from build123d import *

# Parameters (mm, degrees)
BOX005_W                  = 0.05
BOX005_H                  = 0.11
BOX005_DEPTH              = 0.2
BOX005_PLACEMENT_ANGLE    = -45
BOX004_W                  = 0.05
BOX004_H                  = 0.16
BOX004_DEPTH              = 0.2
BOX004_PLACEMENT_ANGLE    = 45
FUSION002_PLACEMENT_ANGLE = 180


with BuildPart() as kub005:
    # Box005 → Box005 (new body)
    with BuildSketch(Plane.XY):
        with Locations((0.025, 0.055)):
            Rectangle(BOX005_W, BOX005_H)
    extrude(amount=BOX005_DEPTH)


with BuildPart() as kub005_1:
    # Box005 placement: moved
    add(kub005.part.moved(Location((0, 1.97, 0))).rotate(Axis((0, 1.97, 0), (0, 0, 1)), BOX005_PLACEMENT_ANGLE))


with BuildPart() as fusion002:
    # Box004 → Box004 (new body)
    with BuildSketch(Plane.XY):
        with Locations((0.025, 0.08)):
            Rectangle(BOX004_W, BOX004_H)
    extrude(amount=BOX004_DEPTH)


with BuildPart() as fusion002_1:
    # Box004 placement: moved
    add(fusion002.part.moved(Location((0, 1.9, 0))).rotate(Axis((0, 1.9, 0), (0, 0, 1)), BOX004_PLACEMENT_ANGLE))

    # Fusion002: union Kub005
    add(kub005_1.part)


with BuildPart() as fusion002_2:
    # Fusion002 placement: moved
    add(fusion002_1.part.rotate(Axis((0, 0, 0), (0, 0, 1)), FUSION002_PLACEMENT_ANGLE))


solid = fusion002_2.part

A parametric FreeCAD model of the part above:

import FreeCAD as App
import Part
import Sketcher
from FreeCAD import Vector

doc = App.newDocument("Part")
body = doc.addObject("PartDesign::Body", "Body")

# Sketch on XY plane
sketch1 = body.newObject("Sketcher::SketchObject", "Sketch")
sketch1.AttachmentSupport = (doc.getObject("XY_Plane"), [""])
sketch1.MapMode = "FlatFace"
sketch1.addGeometry([
    Part.LineSegment(Vector(0, 0.11, 0), Vector(0, 0, 0)),
    Part.LineSegment(Vector(0, 0, 0), Vector(0.05, 0, 0)),
    Part.LineSegment(Vector(0.05, 0, 0), Vector(0.05, 0.11, 0)),
    Part.LineSegment(Vector(0.05, 0.11, 0), Vector(0, 0.11, 0)),
], False)
sketch1.addConstraint([
    Sketcher.Constraint("Coincident", 0, 2, 1, 1),
    Sketcher.Constraint("Coincident", 1, 2, 2, 1),
    Sketcher.Constraint("Coincident", 2, 2, 3, 1),
    Sketcher.Constraint("Coincident", 3, 2, 0, 1),
    Sketcher.Constraint("Vertical", 0),
    Sketcher.Constraint("Horizontal", 1),
    Sketcher.Constraint("Vertical", 2),
    Sketcher.Constraint("Horizontal", 3),
    Sketcher.Constraint("Coincident", 0, 2, -1, 1),
    Sketcher.Constraint("DistanceX", 1, 1, 1, 2, 0.05),
    Sketcher.Constraint("DistanceY", 0, 2, 0, 1, 0.11),
])
pad1 = body.newObject("PartDesign::Pad", "Pad")
pad1.Profile = sketch1
pad1.Length = 0.2
body2 = doc.addObject("PartDesign::Body", "Body001")
doc.recompute()

body.Placement = App.Placement(Vector(0, 1.97, 0), App.Rotation(Vector(0, 0, 1), 315))
boolean = body2.newObject("PartDesign::Boolean", "Boolean")
boolean.Type = "Fuse"
boolean.addObjects([body])
body3 = doc.addObject("PartDesign::Body", "Body002")

# Sketch on XY plane
sketch2 = body3.newObject("Sketcher::SketchObject", "Sketch001")
sketch2.AttachmentSupport = (doc.getObject("XY_Plane002"), [""])
sketch2.MapMode = "FlatFace"
sketch2.addGeometry([
    Part.LineSegment(Vector(0, 0.16, 0), Vector(0, 0, 0)),
    Part.LineSegment(Vector(0, 0, 0), Vector(0.05, 0, 0)),
    Part.LineSegment(Vector(0.05, 0, 0), Vector(0.05, 0.16, 0)),
    Part.LineSegment(Vector(0.05, 0.16, 0), Vector(0, 0.16, 0)),
], False)
sketch2.addConstraint([
    Sketcher.Constraint("Coincident", 0, 2, 1, 1),
    Sketcher.Constraint("Coincident", 1, 2, 2, 1),
    Sketcher.Constraint("Coincident", 2, 2, 3, 1),
    Sketcher.Constraint("Coincident", 3, 2, 0, 1),
    Sketcher.Constraint("Vertical", 0),
    Sketcher.Constraint("Horizontal", 1),
    Sketcher.Constraint("Vertical", 2),
    Sketcher.Constraint("Horizontal", 3),
    Sketcher.Constraint("Coincident", 0, 2, -1, 1),
    Sketcher.Constraint("DistanceX", 1, 1, 1, 2, 0.05),
    Sketcher.Constraint("DistanceY", 0, 2, 0, 1, 0.16),
])
pad2 = body3.newObject("PartDesign::Pad", "Pad001")
pad2.Profile = sketch2
pad2.Length = 0.2
body4 = doc.addObject("PartDesign::Body", "Body003")
doc.recompute()

body3.Placement = App.Placement(Vector(0, 1.9, 0), App.Rotation(Vector(0, 0, 1), 45))
boolean2 = body4.newObject("PartDesign::Boolean", "Boolean001")
boolean2.Type = "Fuse"
boolean2.addObjects([body3])
doc.recompute()

boolean3 = body4.newObject("PartDesign::Boolean", "Boolean002")
boolean3.Type = "Fuse"
boolean3.addObjects([body2])
body5 = doc.addObject("PartDesign::Body", "Body004")
doc.recompute()

body4.Placement = App.Placement(Vector(0, 0, 0), App.Rotation(Vector(0, 0, 1), 180))
boolean4 = body5.newObject("PartDesign::Boolean", "Boolean003")
boolean4.Type = "Fuse"
boolean4.addObjects([body4])

doc.recompute()
